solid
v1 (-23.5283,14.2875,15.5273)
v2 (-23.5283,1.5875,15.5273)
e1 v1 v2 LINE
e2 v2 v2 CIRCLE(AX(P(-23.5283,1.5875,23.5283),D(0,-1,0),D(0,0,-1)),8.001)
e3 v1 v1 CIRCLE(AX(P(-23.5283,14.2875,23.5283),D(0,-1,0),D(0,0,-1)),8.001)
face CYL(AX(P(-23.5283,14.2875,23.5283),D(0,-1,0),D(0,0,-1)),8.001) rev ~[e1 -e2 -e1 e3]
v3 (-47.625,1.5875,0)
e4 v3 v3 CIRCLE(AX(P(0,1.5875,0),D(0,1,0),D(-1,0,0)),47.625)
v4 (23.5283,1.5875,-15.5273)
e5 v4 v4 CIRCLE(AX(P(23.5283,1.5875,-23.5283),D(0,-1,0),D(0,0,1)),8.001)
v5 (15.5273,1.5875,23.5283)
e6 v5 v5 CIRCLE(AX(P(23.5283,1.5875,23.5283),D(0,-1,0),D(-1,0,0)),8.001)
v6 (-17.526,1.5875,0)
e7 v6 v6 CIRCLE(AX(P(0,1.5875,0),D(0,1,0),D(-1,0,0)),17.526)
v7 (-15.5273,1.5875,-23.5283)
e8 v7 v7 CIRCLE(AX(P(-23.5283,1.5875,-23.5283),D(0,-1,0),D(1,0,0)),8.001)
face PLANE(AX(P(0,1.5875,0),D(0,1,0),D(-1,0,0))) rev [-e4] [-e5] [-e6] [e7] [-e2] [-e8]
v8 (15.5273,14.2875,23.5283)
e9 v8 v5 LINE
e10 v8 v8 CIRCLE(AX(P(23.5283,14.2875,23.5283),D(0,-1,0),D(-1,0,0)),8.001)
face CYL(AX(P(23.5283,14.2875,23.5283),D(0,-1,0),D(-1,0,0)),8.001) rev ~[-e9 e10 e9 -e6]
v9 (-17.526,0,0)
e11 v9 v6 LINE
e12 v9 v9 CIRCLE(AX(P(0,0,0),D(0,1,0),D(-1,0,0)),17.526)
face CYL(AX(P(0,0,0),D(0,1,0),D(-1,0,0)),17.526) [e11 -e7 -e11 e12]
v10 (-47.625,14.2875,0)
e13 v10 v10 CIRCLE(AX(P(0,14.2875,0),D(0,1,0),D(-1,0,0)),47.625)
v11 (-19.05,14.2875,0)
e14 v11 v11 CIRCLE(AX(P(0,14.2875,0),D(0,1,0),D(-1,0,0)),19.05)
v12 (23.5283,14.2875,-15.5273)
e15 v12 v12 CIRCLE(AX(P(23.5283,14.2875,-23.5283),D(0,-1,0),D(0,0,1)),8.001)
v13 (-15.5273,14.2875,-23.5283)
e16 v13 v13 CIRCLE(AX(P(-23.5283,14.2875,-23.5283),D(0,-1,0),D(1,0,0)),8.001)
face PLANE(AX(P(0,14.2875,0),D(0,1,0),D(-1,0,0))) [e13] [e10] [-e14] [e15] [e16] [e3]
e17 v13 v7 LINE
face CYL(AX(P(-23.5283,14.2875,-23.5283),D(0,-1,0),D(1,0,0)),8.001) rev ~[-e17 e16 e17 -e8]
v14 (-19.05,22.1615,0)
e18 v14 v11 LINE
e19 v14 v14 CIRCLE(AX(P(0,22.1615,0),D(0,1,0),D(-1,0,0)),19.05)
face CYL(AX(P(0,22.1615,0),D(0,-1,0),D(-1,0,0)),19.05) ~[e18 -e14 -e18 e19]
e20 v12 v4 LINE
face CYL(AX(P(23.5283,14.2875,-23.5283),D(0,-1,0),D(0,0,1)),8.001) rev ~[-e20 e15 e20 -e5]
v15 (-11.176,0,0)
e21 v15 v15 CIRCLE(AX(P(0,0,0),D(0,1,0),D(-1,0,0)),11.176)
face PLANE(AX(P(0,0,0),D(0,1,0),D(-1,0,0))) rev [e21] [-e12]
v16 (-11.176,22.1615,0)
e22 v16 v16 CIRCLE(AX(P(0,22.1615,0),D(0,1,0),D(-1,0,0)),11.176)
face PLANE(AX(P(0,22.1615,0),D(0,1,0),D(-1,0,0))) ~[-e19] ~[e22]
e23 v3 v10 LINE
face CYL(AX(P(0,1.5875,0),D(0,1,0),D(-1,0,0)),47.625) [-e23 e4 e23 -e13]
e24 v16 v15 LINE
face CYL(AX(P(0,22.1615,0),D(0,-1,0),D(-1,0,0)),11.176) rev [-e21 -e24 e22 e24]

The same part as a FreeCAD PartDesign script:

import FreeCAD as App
import Part
import Sketcher
from FreeCAD import Vector
Q = App.Units.Quantity


def add_polygon(sketch, points):
    """Adds a closed chain of lines whose ends are joined by coincident constraints."""
    first, n = sketch.GeometryCount, len(points)
    for a, b in zip(points, points[1:] + points[:1]):
        sketch.addGeometry(Part.LineSegment(App.Vector(*a, 0), App.Vector(*b, 0)), False)
    for i in range(n):
        sketch.addConstraint(Sketcher.Constraint("Coincident", first + i, 2, first + (i + 1) % n, 1))

doc = App.newDocument("Part")
body = doc.addObject("PartDesign::Body", "Body")

sketch1 = doc.addObject("Sketcher::SketchObject", "Sketch")
body.addObject(sketch1)
sketch1.AttachmentSupport = (doc.XY_Plane, [""])
sketch1.MapMode = "FlatFace"
add_polygon(sketch1, [(-11.2, 0), (-11.2, 22.2), (-19.1, 22.2), (-19.1, 14.3), (-47.6, 14.3), (-47.6, 1.6), (-17.5, 1.6), (-17.5, 0)])
sketch1.addConstraint(Sketcher.Constraint("Vertical", 0))
sketch1.addConstraint(Sketcher.Constraint("Horizontal", 1))
sketch1.addConstraint(Sketcher.Constraint("Vertical", 2))
sketch1.addConstraint(Sketcher.Constraint("Horizontal", 3))
sketch1.addConstraint(Sketcher.Constraint("Vertical", 4))
sketch1.addConstraint(Sketcher.Constraint("Horizontal", 5))
sketch1.addConstraint(Sketcher.Constraint("Vertical", 6))
sketch1.addConstraint(Sketcher.Constraint("Horizontal", 7))
sketch1.addConstraint(Sketcher.Constraint("PointOnObject", 6, 2, -1))
sketch1.addConstraint(Sketcher.Constraint("Equal", 1, 2))
sketch1.addConstraint(Sketcher.Constraint("DistanceY", 4, 2, 4, 1, Q("0.5 in")))
sketch1.addConstraint(Sketcher.Constraint("DistanceY", 6, 2, 6, 1, Q("0.0625 in")))
sketch1.addConstraint(Sketcher.Constraint("DistanceY", 4, 2, 1, 2, Q("0.81 in")))
sketch1.addConstraint(Sketcher.Constraint("DistanceX", 7, 1, 7, 2, Q("0.25 in")))
sketch1.addConstraint(Sketcher.Constraint("DistanceX", 3, 2, 3, 1, Q("1.125 in")))
sketch1.addConstraint(Sketcher.Constraint("DistanceX", 0, 2, -1, 1, Q("0.44 in")))
revolution = doc.addObject("PartDesign::Revolution", "Revolution")
body.addObject(revolution)
revolution.Profile = sketch1
revolution.ReferenceAxis = (sketch1, ["V_Axis"])
revolution.Angle = 360

sketch2 = doc.addObject("Sketcher::SketchObject", "Sketch001")
body.addObject(sketch2)
sketch2.AttachmentSupport = (doc.XZ_Plane, [""])
sketch2.MapMode = "FlatFace"
sketch2.AttachmentOffset = App.Placement(Vector(0, 0, -0.5625 * 25.4), App.Rotation())
sketch2.addGeometry(Part.Circle(Vector(24, -24, 0), Vector(0, 0, 1), 8), False)
sketch2.addConstraint(Sketcher.Constraint("Diameter", 0, Q("0.63 in")))
sketch2.addConstraint(Sketcher.Constraint("DistanceX", -1, 1, 0, 3, Q("0.9263 in")))
sketch2.addConstraint(Sketcher.Constraint("DistanceY", 0, 3, -1, 1, Q("0.9263 in")))
doc.recompute()
hole = doc.addObject("PartDesign::Hole", "Hole")
body.addObject(hole)
hole.Profile = sketch2
hole.ThreadType = "None"
hole.Diameter = Q("0.63 in")
hole.DepthType = "Dimension"
hole.Depth = Q("0.5 in")
hole.DrillPoint = "Flat"
hole.Reversed = True
doc.recompute()

polarpattern = doc.addObject("PartDesign::PolarPattern", "PolarPattern")
body.addObject(polarpattern)
polarpattern.Originals = [hole]
polarpattern.Axis = (doc.Y_Axis, [""])
polarpattern.Angle = 360
polarpattern.Occurrences = 4
body.Tip = polarpattern

doc.recompute()
